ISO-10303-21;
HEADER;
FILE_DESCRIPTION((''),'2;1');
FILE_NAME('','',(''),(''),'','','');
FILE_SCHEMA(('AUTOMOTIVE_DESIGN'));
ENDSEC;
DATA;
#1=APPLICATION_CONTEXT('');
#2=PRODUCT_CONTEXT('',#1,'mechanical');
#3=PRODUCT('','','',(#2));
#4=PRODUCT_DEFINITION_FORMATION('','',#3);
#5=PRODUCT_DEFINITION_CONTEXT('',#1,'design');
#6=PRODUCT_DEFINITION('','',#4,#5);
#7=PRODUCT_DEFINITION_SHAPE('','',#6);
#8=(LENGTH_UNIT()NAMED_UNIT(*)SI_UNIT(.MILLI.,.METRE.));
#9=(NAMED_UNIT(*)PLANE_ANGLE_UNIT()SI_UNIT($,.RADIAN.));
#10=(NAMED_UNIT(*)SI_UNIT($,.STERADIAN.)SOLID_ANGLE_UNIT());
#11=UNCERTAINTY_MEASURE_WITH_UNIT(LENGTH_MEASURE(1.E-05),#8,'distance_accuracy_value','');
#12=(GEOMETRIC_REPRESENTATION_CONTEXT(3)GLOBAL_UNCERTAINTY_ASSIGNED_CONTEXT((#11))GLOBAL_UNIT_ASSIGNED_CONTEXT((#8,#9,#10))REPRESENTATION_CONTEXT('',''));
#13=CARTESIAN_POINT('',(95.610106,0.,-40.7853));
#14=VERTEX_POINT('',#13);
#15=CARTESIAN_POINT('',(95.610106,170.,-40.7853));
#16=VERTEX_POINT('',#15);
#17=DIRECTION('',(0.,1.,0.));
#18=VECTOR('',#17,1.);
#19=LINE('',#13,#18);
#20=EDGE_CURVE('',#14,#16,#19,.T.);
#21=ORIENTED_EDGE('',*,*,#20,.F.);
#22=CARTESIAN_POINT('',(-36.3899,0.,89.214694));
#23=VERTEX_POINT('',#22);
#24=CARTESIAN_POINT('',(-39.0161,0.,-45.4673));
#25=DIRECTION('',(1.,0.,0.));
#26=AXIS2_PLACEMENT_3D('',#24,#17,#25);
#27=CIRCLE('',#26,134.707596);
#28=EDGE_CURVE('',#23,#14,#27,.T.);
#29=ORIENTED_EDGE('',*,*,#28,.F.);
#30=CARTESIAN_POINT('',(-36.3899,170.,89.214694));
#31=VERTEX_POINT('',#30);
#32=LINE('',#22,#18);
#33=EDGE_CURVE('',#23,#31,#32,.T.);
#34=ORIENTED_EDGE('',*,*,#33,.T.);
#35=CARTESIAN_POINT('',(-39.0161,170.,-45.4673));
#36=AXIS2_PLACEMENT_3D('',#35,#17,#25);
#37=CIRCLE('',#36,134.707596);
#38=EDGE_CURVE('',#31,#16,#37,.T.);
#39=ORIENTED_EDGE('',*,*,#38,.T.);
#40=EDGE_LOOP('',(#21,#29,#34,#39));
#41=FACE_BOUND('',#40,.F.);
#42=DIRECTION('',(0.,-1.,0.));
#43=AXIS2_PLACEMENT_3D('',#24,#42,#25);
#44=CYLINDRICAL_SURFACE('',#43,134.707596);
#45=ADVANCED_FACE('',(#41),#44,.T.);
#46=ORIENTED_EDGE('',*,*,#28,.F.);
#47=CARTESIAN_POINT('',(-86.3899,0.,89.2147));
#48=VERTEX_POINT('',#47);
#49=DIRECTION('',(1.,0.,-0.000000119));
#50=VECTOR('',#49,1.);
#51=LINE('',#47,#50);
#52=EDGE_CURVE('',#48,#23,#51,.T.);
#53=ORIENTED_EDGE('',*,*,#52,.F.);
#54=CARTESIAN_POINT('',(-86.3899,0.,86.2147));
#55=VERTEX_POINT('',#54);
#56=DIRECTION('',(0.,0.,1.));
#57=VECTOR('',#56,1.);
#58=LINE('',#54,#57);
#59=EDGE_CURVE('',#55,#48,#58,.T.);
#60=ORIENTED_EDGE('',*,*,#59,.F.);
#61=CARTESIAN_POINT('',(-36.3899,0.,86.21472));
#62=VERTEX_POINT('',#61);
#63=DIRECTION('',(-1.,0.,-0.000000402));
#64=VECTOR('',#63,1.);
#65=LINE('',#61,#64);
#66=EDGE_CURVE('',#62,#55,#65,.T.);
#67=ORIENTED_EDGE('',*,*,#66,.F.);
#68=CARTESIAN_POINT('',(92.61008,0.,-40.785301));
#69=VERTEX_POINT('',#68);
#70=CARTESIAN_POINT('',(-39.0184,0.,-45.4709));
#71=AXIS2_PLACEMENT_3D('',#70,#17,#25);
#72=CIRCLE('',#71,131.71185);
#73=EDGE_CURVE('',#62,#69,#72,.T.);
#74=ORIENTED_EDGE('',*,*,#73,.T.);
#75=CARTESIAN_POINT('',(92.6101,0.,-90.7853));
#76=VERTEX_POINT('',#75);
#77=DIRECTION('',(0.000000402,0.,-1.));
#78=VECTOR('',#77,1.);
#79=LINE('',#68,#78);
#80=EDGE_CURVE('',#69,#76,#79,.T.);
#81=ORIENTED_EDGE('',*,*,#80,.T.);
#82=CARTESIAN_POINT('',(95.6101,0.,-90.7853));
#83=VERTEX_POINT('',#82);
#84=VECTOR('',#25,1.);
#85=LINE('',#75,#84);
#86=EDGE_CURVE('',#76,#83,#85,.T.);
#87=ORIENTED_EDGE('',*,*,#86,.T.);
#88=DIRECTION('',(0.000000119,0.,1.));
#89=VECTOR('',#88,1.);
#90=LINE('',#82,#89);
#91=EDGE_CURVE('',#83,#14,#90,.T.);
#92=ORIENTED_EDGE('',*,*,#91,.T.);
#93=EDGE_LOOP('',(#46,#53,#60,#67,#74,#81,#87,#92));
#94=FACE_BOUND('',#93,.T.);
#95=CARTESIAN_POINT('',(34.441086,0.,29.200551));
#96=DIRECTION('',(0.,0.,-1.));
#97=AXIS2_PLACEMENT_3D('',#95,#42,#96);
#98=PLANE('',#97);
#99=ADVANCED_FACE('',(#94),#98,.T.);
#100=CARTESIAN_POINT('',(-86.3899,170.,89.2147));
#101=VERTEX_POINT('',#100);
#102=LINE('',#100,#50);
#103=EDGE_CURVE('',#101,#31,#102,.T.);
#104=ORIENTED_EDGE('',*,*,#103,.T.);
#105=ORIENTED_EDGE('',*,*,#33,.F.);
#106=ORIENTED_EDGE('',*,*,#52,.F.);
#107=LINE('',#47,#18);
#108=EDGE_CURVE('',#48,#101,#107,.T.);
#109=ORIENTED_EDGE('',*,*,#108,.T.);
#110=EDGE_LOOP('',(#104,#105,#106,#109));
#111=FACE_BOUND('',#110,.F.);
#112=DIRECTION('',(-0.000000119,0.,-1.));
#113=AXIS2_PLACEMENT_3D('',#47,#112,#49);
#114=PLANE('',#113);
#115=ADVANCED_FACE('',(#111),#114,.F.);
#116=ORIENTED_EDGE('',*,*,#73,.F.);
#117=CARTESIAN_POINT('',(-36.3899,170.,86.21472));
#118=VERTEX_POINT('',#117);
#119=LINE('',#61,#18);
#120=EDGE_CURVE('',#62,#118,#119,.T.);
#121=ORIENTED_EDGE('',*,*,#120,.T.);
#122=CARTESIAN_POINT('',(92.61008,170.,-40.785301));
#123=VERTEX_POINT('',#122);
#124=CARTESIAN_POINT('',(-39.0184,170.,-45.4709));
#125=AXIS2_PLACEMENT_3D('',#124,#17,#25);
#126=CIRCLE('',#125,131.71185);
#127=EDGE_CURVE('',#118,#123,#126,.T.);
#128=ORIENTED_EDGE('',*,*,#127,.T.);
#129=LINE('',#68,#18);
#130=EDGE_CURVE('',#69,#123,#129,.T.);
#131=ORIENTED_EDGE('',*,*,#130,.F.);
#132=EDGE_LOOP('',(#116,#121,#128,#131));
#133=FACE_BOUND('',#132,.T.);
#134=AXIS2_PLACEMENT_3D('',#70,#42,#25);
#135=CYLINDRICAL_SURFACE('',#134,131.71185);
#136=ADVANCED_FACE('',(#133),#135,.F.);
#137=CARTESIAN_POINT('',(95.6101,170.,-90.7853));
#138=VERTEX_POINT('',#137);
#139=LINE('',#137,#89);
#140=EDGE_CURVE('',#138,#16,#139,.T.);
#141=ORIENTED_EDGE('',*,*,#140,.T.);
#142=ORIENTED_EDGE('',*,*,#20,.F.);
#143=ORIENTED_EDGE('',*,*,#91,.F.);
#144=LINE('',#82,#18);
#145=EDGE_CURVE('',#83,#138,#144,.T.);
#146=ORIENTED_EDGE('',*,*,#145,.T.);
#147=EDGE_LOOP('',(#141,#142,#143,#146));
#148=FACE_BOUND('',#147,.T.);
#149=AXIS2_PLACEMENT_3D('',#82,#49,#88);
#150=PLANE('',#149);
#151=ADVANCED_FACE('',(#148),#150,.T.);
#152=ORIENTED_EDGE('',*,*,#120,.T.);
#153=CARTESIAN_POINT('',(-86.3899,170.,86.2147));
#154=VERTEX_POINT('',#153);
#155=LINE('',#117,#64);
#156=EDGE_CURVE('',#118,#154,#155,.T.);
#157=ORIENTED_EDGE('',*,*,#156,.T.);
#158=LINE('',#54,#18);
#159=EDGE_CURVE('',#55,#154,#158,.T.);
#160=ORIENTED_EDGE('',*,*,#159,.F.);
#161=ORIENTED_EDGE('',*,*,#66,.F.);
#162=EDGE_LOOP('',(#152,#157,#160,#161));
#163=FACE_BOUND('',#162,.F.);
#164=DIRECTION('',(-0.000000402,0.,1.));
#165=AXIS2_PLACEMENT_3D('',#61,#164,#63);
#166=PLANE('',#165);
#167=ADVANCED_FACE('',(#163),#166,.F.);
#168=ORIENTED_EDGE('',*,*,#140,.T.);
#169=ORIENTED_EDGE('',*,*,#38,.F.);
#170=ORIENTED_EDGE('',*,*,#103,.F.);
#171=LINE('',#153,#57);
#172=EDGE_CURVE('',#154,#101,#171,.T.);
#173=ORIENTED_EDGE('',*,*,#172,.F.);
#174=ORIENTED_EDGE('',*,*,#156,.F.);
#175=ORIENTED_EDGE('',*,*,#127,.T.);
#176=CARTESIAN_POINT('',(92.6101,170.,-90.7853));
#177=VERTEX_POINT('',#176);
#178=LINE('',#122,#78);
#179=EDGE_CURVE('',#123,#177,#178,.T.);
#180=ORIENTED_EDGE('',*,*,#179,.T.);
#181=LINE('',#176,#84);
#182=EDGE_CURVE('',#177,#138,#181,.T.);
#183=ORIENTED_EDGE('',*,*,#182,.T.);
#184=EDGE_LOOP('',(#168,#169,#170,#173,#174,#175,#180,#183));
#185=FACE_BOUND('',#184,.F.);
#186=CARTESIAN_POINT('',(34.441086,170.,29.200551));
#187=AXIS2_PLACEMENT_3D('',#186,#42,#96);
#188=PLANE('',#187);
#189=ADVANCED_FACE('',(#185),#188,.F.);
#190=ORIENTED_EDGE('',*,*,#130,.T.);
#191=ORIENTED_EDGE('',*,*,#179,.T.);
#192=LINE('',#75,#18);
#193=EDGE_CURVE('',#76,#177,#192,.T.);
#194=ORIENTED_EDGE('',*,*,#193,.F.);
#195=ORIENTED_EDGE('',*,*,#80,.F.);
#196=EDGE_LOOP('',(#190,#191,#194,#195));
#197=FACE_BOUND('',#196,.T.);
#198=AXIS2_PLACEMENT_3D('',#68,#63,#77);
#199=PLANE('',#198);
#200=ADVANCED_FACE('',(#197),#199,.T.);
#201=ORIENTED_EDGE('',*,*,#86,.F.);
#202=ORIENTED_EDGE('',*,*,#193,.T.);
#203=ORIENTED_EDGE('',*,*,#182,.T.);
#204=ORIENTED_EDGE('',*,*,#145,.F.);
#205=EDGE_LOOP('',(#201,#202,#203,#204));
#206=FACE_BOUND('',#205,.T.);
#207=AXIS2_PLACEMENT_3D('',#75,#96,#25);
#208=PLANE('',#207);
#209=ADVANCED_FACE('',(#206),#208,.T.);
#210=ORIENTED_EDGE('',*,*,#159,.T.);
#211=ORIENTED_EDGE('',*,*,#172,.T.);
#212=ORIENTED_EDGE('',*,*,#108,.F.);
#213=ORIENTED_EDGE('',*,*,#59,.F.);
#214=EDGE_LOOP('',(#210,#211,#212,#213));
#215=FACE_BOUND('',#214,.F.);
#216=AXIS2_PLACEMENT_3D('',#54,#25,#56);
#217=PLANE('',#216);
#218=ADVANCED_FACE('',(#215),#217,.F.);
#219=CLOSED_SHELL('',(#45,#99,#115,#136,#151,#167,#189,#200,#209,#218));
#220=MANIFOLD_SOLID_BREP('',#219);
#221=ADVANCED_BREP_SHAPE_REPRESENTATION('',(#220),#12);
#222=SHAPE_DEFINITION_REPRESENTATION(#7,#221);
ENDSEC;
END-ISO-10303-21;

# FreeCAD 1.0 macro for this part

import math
import FreeCAD as App
import Part
import Sketcher
from FreeCAD import Vector

doc = App.newDocument("Part")
body = doc.addObject("PartDesign::Body", "Body")

sketch1 = body.newObject("Sketcher::SketchObject", "Sketch")
sketch1.AttachmentSupport = (doc.getObject("XZ_Plane"), [""])
sketch1.MapMode = "FlatFace"
sketch1.addGeometry([
    Part.LineSegment(Vector(-86.3899, 86.2147, 0), Vector(-36.3899, 86.2147, 0)),
    Part.ArcOfCircle(Part.Circle(Vector(-39.0184, -45.4709, 0), Vector(0, 0, 1), 131.71183), math.radians(2.038706), math.radians(88.856504)),
    Part.LineSegment(Vector(92.6101, -40.7853, 0), Vector(92.6101, -90.7853, 0)),
    Part.LineSegment(Vector(92.6101, -90.7853, 0), Vector(95.6101, -90.7853, 0)),
    Part.LineSegment(Vector(95.6101, -90.7853, 0), Vector(95.6101, -40.7853, 0)),
    Part.ArcOfCircle(Part.Circle(Vector(-39.0161, -45.4673, 0), Vector(0, 0, 1), 134.707602), math.radians(1.991817), math.radians(88.882916)),
    Part.LineSegment(Vector(-36.3899, 89.2147, 0), Vector(-86.3899, 89.2147, 0)),
    Part.LineSegment(Vector(-86.3899, 89.2147, 0), Vector(-86.3899, 86.2147, 0)),
], False)
sketch1.addConstraint([
    Sketcher.Constraint("Coincident", 0, 2, 1, 2),
    Sketcher.Constraint("Coincident", 1, 1, 2, 1),
    Sketcher.Constraint("Coincident", 2, 2, 3, 1),
    Sketcher.Constraint("Coincident", 3, 2, 4, 1),
    Sketcher.Constraint("Coincident", 4, 2, 5, 1),
    Sketcher.Constraint("Coincident", 5, 2, 6, 1),
    Sketcher.Constraint("Coincident", 6, 2, 7, 1),
    Sketcher.Constraint("Coincident", 7, 2, 0, 1),
    Sketcher.Constraint("Horizontal", 0),
    Sketcher.Constraint("Vertical", 2),
    Sketcher.Constraint("Horizontal", 3),
    Sketcher.Constraint("Vertical", 4),
    Sketcher.Constraint("Horizontal", 6),
    Sketcher.Constraint("Vertical", 7),
    Sketcher.Constraint("Horizontal", 1, 1, 4, 2),
    Sketcher.Constraint("Vertical", 0, 2, 5, 2),
    Sketcher.Constraint("Equal", 6, 2),
    Sketcher.Constraint("Equal", 3, 7),
    Sketcher.Constraint("DistanceX", 0, 1, 0, 2, 50.0),
    Sketcher.Constraint("DistanceX", 3, 1, 3, 2, 3.0),
    Sketcher.Constraint("DistanceX", 0, 2, -1, 1, 36.39),
    Sketcher.Constraint("DistanceX", -1, 1, 1, 1, 92.61),
    Sketcher.Constraint("DistanceY", 1, 1, 0, 2, 127.0),
    Sketcher.Constraint("Radius", 1, 131.7118),
    Sketcher.Constraint("Radius", 5, 134.7076),
    Sketcher.Constraint("DistanceY", 1, 3, -1, 1, 45.471),
])
pad1 = body.newObject("PartDesign::Pad", "Pad")
pad1.Profile = sketch1
pad1.Length = 170
pad1.Reversed = True

doc.recompute()
